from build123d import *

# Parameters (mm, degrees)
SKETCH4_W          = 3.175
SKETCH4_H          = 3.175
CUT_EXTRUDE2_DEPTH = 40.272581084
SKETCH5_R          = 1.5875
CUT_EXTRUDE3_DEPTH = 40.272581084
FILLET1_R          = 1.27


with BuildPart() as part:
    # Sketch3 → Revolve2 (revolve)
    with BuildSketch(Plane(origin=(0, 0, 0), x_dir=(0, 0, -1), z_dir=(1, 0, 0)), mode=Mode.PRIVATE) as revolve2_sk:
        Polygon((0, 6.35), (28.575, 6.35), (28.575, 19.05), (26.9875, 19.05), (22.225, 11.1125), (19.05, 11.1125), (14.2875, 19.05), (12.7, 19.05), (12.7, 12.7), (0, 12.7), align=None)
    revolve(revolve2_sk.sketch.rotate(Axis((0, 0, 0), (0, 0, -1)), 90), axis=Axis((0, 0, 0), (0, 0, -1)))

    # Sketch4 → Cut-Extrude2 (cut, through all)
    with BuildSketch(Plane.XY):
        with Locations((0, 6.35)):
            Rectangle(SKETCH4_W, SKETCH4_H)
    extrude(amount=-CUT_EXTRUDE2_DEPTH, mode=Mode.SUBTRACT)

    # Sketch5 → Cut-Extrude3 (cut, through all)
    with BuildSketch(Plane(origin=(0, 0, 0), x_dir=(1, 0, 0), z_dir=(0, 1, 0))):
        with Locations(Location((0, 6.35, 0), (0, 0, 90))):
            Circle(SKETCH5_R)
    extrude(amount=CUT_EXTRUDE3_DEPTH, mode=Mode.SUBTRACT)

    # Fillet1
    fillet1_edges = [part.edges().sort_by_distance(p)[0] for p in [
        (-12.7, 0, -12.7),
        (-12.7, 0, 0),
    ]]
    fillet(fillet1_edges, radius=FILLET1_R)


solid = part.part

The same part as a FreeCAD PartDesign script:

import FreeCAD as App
import Part
import Sketcher
from FreeCAD import Vector
Q = App.Units.Quantity


def edges_at(feature, points):
    """Names of the edges that pass closest to the given points."""
    edges = feature.Shape.Edges
    near = lambda p: min(range(len(edges)), key=lambda i: edges[i].distToShape(Part.Vertex(*p))[0])
    return sorted({f"Edge{near(p) + 1}" for p in points})


def add_polygon(sketch, points):
    """Adds a closed chain of lines whose ends are joined by coincident constraints."""
    first, n = sketch.GeometryCount, len(points)
    for a, b in zip(points, points[1:] + points[:1]):
        sketch.addGeometry(Part.LineSegment(App.Vector(*a, 0), App.Vector(*b, 0)), False)
    for i in range(n):
        sketch.addConstraint(Sketcher.Constraint("Coincident", first + i, 2, first + (i + 1) % n, 1))

doc = App.newDocument("Part")
params = doc.addObject("Spreadsheet::Sheet", "Params")
for row, (alias, value) in enumerate([
    ("sketch1_width", "0.5 in"),
    ("sketch1_height", "1.125 in"),
    ("sketch1_height2", "0.125 in"),
    ("revolution_angle", "360 deg"),
    ("sketch2_width", "0.125 in"),
    ("sketch3_diameter", "0.125 in"),
    ("fillet_radius", "0.05 in"),
], start=1):
    params.set(f"A{row}", alias)
    params.set(f"B{row}", "=" + value)
    params.setAlias(f"B{row}", alias)

body = doc.addObject("PartDesign::Body", "Body")

# Sketch on YZ plane
sketch1 = doc.addObject("Sketcher::SketchObject", "Sketch")
body.addObject(sketch1)
sketch1.AttachmentSupport = (doc.YZ_Plane, [""])
sketch1.MapMode = "FlatFace"
add_polygon(sketch1, [(6.3, 0), (6.3, -28.6), (19.1, -28.6), (19.1, -27), (11.1, -22.2), (11.1, -19.1), (19.1, -14.3), (19.1, -12.7), (12.7, -12.7), (12.7, 0)])  # lines 0-9
sketch1.addConstraint([
    Sketcher.Constraint("Vertical", 0),
    Sketcher.Constraint("Horizontal", 1),
    Sketcher.Constraint("Vertical", 2),
    Sketcher.Constraint("Vertical", 4),
    Sketcher.Constraint("Vertical", 6),
    Sketcher.Constraint("Horizontal", 7),
    Sketcher.Constraint("Vertical", 8),
    Sketcher.Constraint("Horizontal", 9),
    Sketcher.Constraint("PointOnObject", 8, 2, -1),
    Sketcher.Constraint("Vertical", 2, 2, 5, 2),
    Sketcher.Constraint("Equal", 7, 9),
    Sketcher.Constraint("Equal", 2, 6),
    Sketcher.Constraint("Equal", 1, 8),
    Sketcher.Constraint("Equal", 3, 5),
    Sketcher.Constraint("DistanceX", 1, 1, 1, 2, Q("0.5 in")),
    Sketcher.Constraint("DistanceX", -1, 1, 7, 2, Q("0.5 in")),
    Sketcher.Constraint("DistanceY", 2, 2, 5, 2, Q("0.5 in")),
    Sketcher.Constraint("DistanceY", 0, 2, 0, 1, Q("1.125 in")),
    Sketcher.Constraint("DistanceY", 4, 1, 4, 2, Q("0.125 in")),
    Sketcher.Constraint("DistanceX", -1, 1, 3, 2, Q("0.4375 in")),
])
sketch1.setExpression("Constraints[24]", "Params.sketch1_width")
sketch1.setExpression("Constraints[27]", "Params.sketch1_height")
sketch1.setExpression("Constraints[28]", "Params.sketch1_height2")
revolution = doc.addObject("PartDesign::Revolution", "Revolution")
body.addObject(revolution)
revolution.Profile = sketch1
revolution.ReferenceAxis = (sketch1, ["V_Axis"])
revolution.setExpression("Angle", "Params.revolution_angle")

# Sketch on XY plane
sketch2 = doc.addObject("Sketcher::SketchObject", "Sketch001")
body.addObject(sketch2)
sketch2.AttachmentSupport = (doc.XY_Plane, [""])
sketch2.MapMode = "FlatFace"
add_polygon(sketch2, [(-1.6, 7.9), (-1.6, 4.8), (1.6, 4.8), (1.6, 7.9)])  # lines 0-3
sketch2.addConstraint([
    Sketcher.Constraint("Vertical", 0),
    Sketcher.Constraint("Horizontal", 1),
    Sketcher.Constraint("Vertical", 2),
    Sketcher.Constraint("Horizontal", 3),
    Sketcher.Constraint("Equal", 3, 0),
    Sketcher.Constraint("DistanceX", 1, 1, 1, 2, Q("0.125 in")),
    Sketcher.Constraint("DistanceX", 0, 2, -1, 1, Q("0.0625 in")),
    Sketcher.Constraint("DistanceY", -1, 1, 0, 2, Q("0.1875 in")),
])
sketch2.setExpression("Constraints[9]", "Params.sketch2_width")
pocket1 = doc.addObject("PartDesign::Pocket", "Pocket")
body.addObject(pocket1)
pocket1.Profile = sketch2
pocket1.Type = "ThroughAll"

# Sketch on XZ plane
sketch3 = doc.addObject("Sketcher::SketchObject", "Sketch002")
body.addObject(sketch3)
sketch3.AttachmentSupport = (doc.XZ_Plane, [""])
sketch3.MapMode = "FlatFace"
sketch3.addGeometry(Part.Circle(Vector(0, -6.3, 0), Vector(0, 0, 1), 1.6), False)
sketch3.addConstraint([
    Sketcher.Constraint("PointOnObject", 0, 3, -2),
    Sketcher.Constraint("Diameter", 0, Q("0.125 in")),
    Sketcher.Constraint("DistanceY", 0, 3, -1, 1, Q("0.25 in")),
])
sketch3.setExpression("Constraints[1]", "Params.sketch3_diameter")
pocket2 = doc.addObject("PartDesign::Pocket", "Pocket001")
body.addObject(pocket2)
pocket2.Profile = sketch3
pocket2.Type = "ThroughAll"
doc.recompute()

fillet = doc.addObject("PartDesign::Fillet", "Fillet")
body.addObject(fillet)
fillet.Base = (pocket2, edges_at(pocket2, [(-12.7, 0, -12.7), (-12.7, 0, 0)]))
fillet.setExpression("Radius", "Params.fillet_radius")

doc.recompute()
